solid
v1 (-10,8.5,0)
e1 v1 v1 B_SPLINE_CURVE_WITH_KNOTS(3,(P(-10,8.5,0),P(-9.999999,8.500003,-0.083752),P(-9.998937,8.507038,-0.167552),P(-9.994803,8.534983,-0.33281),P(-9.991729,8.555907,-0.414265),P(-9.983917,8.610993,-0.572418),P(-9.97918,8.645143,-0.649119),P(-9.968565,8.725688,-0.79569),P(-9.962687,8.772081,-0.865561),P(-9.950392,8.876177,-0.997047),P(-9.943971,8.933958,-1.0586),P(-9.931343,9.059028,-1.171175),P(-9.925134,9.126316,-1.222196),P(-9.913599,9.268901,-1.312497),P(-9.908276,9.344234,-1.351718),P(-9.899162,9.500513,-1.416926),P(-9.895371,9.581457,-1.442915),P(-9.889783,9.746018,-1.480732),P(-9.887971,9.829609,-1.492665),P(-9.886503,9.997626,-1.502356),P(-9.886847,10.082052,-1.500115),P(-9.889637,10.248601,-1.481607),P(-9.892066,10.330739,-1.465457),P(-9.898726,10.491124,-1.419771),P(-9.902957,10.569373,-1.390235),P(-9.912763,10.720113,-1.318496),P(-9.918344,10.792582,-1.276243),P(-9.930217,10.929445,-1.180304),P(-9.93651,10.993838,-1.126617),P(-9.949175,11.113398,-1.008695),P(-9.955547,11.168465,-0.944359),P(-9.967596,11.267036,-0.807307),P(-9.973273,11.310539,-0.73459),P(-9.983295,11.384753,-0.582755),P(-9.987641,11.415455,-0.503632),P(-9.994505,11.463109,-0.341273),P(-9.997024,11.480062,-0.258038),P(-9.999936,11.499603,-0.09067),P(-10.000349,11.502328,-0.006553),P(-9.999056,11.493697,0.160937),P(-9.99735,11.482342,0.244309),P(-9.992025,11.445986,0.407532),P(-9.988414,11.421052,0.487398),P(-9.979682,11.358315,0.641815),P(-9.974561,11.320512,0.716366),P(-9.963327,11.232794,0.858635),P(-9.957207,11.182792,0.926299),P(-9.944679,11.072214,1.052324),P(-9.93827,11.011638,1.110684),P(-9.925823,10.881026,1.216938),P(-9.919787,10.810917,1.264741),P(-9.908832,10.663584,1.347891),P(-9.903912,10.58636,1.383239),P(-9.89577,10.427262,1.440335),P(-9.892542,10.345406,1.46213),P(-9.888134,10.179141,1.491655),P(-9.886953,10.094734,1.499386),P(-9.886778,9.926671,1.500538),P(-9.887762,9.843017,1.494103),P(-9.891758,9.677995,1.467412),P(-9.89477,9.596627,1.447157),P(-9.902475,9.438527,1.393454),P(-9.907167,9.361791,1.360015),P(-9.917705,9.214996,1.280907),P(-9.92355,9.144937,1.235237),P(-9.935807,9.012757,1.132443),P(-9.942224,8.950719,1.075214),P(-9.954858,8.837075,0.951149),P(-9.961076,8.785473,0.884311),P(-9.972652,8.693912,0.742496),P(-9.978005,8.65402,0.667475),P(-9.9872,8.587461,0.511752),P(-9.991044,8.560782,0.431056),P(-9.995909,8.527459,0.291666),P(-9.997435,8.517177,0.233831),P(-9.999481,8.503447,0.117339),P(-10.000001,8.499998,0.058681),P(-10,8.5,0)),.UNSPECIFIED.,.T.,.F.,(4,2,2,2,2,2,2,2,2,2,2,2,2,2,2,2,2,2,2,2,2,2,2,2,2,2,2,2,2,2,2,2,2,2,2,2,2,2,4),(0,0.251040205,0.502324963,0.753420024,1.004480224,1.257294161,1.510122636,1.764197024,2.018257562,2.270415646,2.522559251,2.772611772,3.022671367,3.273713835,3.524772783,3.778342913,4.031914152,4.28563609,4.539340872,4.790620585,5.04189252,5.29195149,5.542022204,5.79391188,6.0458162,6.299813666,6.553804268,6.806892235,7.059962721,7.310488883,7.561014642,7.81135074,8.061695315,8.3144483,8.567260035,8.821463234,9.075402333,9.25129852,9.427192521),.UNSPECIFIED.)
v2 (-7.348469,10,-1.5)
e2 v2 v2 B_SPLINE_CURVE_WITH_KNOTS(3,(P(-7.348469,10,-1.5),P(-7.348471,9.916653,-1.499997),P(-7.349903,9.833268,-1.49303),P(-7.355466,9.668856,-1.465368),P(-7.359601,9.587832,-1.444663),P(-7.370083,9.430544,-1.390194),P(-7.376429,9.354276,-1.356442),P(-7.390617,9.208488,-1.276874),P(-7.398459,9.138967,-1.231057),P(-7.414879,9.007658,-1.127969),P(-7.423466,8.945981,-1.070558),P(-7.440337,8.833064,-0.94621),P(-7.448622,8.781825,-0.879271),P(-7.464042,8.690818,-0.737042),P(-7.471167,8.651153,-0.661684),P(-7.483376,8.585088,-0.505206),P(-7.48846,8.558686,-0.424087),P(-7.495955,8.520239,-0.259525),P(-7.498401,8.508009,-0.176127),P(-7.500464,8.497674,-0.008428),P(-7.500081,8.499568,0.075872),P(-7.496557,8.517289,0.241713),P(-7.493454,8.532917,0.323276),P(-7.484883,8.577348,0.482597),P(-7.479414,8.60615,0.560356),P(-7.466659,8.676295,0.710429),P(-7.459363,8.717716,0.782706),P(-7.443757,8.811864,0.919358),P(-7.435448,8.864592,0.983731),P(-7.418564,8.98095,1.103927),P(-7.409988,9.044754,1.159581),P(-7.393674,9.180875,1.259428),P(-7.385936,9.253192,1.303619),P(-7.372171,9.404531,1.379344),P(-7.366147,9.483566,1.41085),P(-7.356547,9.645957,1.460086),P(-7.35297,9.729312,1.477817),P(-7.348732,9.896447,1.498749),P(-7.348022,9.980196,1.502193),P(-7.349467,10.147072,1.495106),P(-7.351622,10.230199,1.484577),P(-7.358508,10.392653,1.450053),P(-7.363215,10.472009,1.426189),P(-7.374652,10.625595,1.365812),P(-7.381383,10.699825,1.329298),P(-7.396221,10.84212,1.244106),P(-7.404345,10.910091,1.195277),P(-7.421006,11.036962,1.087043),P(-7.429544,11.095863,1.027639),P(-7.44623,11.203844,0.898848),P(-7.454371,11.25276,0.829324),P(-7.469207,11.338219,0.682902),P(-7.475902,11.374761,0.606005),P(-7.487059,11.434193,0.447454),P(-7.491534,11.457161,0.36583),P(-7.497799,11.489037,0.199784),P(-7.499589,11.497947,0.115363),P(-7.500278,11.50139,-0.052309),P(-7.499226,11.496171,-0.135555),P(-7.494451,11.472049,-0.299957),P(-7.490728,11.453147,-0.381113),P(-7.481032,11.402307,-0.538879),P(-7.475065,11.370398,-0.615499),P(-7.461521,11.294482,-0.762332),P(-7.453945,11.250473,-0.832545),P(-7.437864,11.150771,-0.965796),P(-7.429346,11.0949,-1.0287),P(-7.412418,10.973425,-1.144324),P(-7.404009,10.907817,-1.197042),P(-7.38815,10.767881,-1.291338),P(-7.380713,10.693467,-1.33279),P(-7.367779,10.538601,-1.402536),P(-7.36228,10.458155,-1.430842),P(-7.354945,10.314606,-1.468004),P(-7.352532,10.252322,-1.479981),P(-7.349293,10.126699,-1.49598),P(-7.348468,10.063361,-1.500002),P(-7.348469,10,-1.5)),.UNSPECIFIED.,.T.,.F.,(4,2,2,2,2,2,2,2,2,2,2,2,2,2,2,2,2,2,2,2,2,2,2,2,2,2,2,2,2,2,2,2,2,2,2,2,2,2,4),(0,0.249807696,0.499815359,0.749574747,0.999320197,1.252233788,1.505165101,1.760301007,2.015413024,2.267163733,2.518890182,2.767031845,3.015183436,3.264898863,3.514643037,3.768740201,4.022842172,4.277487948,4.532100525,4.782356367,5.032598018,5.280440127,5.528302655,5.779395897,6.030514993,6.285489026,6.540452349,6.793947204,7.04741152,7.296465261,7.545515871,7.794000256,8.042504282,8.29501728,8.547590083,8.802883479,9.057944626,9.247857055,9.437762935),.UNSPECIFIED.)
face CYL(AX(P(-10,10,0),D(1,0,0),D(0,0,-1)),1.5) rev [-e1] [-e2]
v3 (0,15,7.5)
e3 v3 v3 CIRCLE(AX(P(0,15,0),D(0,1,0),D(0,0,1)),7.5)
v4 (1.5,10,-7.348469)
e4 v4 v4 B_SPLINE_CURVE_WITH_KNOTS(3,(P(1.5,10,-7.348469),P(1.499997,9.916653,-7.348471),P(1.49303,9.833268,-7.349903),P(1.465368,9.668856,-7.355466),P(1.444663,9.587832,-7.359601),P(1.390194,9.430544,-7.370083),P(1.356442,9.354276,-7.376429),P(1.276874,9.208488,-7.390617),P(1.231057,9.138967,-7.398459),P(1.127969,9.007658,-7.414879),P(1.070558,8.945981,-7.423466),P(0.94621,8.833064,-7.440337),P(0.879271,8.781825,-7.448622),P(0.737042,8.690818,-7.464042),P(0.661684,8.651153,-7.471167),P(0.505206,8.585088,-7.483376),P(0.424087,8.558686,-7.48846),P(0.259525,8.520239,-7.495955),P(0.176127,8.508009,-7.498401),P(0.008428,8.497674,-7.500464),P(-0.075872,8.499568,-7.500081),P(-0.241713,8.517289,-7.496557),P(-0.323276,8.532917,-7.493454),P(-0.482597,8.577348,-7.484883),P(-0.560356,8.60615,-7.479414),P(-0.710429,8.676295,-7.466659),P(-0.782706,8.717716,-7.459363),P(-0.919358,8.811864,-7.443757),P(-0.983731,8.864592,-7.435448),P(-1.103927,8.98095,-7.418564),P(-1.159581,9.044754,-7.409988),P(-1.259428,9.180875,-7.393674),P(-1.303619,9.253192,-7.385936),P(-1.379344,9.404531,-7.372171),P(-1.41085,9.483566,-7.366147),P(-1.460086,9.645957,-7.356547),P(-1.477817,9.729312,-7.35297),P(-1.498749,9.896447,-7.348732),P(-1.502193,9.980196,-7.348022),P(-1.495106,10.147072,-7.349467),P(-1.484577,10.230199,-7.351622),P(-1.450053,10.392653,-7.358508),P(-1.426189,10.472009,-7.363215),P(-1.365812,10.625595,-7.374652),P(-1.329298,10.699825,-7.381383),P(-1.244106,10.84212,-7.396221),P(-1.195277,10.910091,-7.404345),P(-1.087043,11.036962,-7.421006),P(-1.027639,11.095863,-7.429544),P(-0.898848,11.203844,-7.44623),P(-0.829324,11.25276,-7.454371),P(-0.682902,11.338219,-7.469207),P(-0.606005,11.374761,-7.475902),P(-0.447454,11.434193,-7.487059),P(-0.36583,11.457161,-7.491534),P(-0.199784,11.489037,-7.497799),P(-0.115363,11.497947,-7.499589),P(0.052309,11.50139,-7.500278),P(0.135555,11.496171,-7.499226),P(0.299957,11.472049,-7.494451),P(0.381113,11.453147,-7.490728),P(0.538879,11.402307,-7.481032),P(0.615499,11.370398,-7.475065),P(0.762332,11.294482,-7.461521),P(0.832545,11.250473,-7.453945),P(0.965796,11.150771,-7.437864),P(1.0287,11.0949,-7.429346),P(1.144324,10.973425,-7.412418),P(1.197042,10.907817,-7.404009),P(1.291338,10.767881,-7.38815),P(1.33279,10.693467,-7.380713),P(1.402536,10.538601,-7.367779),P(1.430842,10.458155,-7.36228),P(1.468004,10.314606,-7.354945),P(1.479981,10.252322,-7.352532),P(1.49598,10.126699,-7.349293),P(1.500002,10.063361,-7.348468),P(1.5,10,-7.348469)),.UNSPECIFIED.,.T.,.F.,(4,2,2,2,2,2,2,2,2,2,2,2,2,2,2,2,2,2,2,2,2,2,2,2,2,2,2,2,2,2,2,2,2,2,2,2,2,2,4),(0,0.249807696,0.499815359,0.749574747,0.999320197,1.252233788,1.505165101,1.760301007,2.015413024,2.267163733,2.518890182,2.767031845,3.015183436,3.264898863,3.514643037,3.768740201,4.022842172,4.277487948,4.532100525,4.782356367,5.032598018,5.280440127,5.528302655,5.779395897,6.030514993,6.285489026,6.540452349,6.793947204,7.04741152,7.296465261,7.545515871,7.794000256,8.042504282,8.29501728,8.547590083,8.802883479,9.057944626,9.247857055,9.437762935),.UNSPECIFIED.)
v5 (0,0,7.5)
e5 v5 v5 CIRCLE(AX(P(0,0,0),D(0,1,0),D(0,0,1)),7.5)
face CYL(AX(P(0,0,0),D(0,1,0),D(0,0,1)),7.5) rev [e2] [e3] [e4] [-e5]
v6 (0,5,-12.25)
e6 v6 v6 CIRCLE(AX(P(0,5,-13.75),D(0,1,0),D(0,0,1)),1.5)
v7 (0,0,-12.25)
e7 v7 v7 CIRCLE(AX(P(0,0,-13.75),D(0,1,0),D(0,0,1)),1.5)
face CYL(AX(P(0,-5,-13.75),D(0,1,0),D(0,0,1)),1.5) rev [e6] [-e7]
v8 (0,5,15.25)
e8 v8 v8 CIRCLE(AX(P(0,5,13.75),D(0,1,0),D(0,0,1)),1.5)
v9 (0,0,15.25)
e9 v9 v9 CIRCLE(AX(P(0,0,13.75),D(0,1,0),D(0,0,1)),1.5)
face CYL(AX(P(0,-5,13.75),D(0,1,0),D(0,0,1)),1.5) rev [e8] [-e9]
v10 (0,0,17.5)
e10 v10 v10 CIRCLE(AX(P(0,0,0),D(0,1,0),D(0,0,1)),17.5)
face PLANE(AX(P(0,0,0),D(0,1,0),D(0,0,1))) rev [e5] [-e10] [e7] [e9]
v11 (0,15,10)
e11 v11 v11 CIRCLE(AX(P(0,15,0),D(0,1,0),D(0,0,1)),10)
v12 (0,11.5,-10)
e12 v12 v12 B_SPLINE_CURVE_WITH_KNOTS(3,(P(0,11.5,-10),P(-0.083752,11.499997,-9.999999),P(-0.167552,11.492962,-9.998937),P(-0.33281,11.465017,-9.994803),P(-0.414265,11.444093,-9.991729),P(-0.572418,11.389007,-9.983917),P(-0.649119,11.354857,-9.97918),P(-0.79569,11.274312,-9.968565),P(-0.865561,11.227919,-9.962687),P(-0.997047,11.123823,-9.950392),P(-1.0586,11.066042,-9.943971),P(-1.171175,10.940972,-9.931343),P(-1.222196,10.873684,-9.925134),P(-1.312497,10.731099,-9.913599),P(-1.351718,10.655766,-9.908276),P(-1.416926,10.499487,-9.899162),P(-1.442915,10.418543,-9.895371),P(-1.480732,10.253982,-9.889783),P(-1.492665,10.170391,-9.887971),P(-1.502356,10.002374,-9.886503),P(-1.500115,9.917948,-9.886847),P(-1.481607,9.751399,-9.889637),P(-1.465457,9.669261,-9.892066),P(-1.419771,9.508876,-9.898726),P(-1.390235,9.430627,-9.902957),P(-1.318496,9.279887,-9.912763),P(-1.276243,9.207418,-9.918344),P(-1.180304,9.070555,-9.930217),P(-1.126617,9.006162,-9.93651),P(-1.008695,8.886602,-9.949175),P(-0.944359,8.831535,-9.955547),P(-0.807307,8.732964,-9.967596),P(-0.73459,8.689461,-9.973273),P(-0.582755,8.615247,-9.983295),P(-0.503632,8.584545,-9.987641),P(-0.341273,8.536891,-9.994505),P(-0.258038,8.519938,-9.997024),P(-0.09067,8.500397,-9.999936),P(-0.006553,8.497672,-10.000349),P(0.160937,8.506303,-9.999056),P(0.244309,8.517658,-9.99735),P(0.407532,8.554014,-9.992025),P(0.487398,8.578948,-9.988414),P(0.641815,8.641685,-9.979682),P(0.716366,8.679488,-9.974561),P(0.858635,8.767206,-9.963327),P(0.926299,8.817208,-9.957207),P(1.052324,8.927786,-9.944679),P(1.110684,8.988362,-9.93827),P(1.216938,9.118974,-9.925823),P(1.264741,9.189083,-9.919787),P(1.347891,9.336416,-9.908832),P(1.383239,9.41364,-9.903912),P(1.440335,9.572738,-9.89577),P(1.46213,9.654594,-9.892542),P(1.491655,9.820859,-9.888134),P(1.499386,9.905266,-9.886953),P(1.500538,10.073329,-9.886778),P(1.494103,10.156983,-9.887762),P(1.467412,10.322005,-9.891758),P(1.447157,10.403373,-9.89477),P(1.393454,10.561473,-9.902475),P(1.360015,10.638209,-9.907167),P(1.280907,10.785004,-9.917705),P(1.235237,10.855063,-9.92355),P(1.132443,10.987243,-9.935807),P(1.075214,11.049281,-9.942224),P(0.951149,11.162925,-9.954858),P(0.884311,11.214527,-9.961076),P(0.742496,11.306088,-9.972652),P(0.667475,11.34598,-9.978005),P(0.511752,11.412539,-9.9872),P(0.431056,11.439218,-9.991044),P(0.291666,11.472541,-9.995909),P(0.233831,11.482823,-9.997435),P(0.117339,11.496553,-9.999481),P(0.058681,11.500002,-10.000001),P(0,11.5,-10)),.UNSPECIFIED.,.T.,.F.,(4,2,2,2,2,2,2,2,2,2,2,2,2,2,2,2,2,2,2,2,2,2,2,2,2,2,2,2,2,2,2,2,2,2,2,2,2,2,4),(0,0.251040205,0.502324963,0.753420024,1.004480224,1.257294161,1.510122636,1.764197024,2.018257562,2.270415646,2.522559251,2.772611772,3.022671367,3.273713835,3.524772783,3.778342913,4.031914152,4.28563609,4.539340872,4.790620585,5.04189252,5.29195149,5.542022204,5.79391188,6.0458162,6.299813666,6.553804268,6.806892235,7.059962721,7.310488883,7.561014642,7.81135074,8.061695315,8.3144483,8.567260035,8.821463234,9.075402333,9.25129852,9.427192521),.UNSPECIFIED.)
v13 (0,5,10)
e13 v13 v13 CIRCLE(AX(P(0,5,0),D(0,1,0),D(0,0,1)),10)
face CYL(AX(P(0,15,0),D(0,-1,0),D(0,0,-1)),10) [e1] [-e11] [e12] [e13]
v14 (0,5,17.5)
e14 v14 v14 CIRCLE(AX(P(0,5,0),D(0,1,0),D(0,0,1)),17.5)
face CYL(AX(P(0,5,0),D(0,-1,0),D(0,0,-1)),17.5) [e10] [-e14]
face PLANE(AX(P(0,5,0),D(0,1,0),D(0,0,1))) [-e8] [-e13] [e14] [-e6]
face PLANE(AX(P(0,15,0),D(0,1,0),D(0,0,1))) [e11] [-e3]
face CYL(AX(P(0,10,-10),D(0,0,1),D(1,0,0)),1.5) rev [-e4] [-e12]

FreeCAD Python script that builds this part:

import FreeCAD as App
import Part
import Sketcher
Q = App.Units.Quantity

doc = App.newDocument("Part")
body = doc.addObject("PartDesign::Body", "Body")

# Sketch on XZ plane
sketch1 = body.newObject("Sketcher::SketchObject", "Sketch")
sketch1.AttachmentSupport = (doc.getObject("XZ_Plane"), [""])
sketch1.MapMode = "FlatFace"
sketch1.addGeometry(Part.Circle(App.Vector(0, 0, 0), App.Vector(0, 0, 1), 18), False)
sketch1.addConstraint(Sketcher.Constraint("Coincident", 0, 3, -1, 1))
sketch1.addConstraint(Sketcher.Constraint("Diameter", 0, Q("35 mm")))
pad1 = body.newObject("PartDesign::Pad", "Pad")
pad1.Profile = sketch1
pad1.Length = 5
pad1.Reversed = True

# Sketch on XZ plane
sketch2 = body.newObject("Sketcher::SketchObject", "Sketch001")
sketch2.AttachmentSupport = (doc.getObject("XZ_Plane"), [""])
sketch2.MapMode = "FlatFace"
sketch2.AttachmentOffset = App.Placement(App.Vector(0, 0, -5), App.Rotation())
sketch2.addGeometry(Part.Circle(App.Vector(0, 0, 0), App.Vector(0, 0, 1), 10), False)
sketch2.addConstraint(Sketcher.Constraint("Coincident", 0, 3, -1, 1))
sketch2.addConstraint(Sketcher.Constraint("Diameter", 0, Q("20 mm")))
pad2 = body.newObject("PartDesign::Pad", "Pad001")
pad2.Profile = sketch2
pad2.Length = 10
pad2.Reversed = True

# Sketch on XZ plane
sketch3 = body.newObject("Sketcher::SketchObject", "Sketch002")
sketch3.AttachmentSupport = (doc.getObject("XZ_Plane"), [""])
sketch3.MapMode = "FlatFace"
sketch3.AttachmentOffset = App.Placement(App.Vector(0, 0, -15), App.Rotation())
sketch3.addGeometry(Part.Circle(App.Vector(0, 0, 0), App.Vector(0, 0, 1), 8), False)
sketch3.addConstraint(Sketcher.Constraint("Coincident", 0, 3, -1, 1))
sketch3.addConstraint(Sketcher.Constraint("Diameter", 0, Q("15 mm")))
pocket1 = body.newObject("PartDesign::Pocket", "Pocket")
pocket1.Profile = sketch3
pocket1.Type = "ThroughAll"
pocket1.Reversed = True

# Sketch on XZ plane
sketch4 = body.newObject("Sketcher::SketchObject", "Sketch003")
sketch4.AttachmentSupport = (doc.getObject("XZ_Plane"), [""])
sketch4.MapMode = "FlatFace"
sketch4.AttachmentOffset = App.Placement(App.Vector(0, 0, -5), App.Rotation())
sketch4.addGeometry(Part.Circle(App.Vector(0, -13.8, 0), App.Vector(0, 0, 1), 1.5), False)
sketch4.addGeometry(Part.Circle(App.Vector(0, 13.8, 0), App.Vector(0, 0, 1), 1.5), False)
sketch4.addConstraint(Sketcher.Constraint("Equal", 0, 1))
sketch4.addConstraint(Sketcher.Constraint("Symmetric", 0, 3, 1, 3, -1, 1))
sketch4.addConstraint(Sketcher.Constraint("PointOnObject", 0, 3, -2))
sketch4.addConstraint(Sketcher.Constraint("Diameter", 0, Q("3 mm")))
sketch4.addConstraint(Sketcher.Constraint("DistanceY", 0, 3, 1, 3, Q("27.5 mm")))
pocket2 = body.newObject("PartDesign::Pocket", "Pocket001")
pocket2.Profile = sketch4
pocket2.Length = 10
pocket2.Reversed = True

# Sketch on XY plane
sketch5 = body.newObject("Sketcher::SketchObject", "Sketch004")
sketch5.AttachmentSupport = (doc.getObject("XY_Plane"), [""])
sketch5.MapMode = "FlatFace"
sketch5.addGeometry(Part.Circle(App.Vector(0, 10, 0), App.Vector(0, 0, 1), 1.5), False)
sketch5.addConstraint(Sketcher.Constraint("PointOnObject", 0, 3, -2))
sketch5.addConstraint(Sketcher.Constraint("Diameter", 0, Q("3 mm")))
sketch5.addConstraint(Sketcher.Constraint("DistanceY", -1, 1, 0, 3, Q("10 mm")))
pocket3 = body.newObject("PartDesign::Pocket", "Pocket002")
pocket3.Profile = sketch5
pocket3.Length = 10

# Sketch on YZ plane
sketch6 = body.newObject("Sketcher::SketchObject", "Sketch005")
sketch6.AttachmentSupport = (doc.getObject("YZ_Plane"), [""])
sketch6.MapMode = "FlatFace"
sketch6.addGeometry(Part.Circle(App.Vector(10, 0, 0), App.Vector(0, 0, 1), 1.5), False)
sketch6.addConstraint(Sketcher.Constraint("PointOnObject", 0, 3, -1))
sketch6.addConstraint(Sketcher.Constraint("Diameter", 0, Q("3 mm")))
sketch6.addConstraint(Sketcher.Constraint("DistanceX", -1, 1, 0, 3, Q("10 mm")))
pocket4 = body.newObject("PartDesign::Pocket", "Pocket003")
pocket4.Profile = sketch6
pocket4.Length = 10

doc.recompute()
